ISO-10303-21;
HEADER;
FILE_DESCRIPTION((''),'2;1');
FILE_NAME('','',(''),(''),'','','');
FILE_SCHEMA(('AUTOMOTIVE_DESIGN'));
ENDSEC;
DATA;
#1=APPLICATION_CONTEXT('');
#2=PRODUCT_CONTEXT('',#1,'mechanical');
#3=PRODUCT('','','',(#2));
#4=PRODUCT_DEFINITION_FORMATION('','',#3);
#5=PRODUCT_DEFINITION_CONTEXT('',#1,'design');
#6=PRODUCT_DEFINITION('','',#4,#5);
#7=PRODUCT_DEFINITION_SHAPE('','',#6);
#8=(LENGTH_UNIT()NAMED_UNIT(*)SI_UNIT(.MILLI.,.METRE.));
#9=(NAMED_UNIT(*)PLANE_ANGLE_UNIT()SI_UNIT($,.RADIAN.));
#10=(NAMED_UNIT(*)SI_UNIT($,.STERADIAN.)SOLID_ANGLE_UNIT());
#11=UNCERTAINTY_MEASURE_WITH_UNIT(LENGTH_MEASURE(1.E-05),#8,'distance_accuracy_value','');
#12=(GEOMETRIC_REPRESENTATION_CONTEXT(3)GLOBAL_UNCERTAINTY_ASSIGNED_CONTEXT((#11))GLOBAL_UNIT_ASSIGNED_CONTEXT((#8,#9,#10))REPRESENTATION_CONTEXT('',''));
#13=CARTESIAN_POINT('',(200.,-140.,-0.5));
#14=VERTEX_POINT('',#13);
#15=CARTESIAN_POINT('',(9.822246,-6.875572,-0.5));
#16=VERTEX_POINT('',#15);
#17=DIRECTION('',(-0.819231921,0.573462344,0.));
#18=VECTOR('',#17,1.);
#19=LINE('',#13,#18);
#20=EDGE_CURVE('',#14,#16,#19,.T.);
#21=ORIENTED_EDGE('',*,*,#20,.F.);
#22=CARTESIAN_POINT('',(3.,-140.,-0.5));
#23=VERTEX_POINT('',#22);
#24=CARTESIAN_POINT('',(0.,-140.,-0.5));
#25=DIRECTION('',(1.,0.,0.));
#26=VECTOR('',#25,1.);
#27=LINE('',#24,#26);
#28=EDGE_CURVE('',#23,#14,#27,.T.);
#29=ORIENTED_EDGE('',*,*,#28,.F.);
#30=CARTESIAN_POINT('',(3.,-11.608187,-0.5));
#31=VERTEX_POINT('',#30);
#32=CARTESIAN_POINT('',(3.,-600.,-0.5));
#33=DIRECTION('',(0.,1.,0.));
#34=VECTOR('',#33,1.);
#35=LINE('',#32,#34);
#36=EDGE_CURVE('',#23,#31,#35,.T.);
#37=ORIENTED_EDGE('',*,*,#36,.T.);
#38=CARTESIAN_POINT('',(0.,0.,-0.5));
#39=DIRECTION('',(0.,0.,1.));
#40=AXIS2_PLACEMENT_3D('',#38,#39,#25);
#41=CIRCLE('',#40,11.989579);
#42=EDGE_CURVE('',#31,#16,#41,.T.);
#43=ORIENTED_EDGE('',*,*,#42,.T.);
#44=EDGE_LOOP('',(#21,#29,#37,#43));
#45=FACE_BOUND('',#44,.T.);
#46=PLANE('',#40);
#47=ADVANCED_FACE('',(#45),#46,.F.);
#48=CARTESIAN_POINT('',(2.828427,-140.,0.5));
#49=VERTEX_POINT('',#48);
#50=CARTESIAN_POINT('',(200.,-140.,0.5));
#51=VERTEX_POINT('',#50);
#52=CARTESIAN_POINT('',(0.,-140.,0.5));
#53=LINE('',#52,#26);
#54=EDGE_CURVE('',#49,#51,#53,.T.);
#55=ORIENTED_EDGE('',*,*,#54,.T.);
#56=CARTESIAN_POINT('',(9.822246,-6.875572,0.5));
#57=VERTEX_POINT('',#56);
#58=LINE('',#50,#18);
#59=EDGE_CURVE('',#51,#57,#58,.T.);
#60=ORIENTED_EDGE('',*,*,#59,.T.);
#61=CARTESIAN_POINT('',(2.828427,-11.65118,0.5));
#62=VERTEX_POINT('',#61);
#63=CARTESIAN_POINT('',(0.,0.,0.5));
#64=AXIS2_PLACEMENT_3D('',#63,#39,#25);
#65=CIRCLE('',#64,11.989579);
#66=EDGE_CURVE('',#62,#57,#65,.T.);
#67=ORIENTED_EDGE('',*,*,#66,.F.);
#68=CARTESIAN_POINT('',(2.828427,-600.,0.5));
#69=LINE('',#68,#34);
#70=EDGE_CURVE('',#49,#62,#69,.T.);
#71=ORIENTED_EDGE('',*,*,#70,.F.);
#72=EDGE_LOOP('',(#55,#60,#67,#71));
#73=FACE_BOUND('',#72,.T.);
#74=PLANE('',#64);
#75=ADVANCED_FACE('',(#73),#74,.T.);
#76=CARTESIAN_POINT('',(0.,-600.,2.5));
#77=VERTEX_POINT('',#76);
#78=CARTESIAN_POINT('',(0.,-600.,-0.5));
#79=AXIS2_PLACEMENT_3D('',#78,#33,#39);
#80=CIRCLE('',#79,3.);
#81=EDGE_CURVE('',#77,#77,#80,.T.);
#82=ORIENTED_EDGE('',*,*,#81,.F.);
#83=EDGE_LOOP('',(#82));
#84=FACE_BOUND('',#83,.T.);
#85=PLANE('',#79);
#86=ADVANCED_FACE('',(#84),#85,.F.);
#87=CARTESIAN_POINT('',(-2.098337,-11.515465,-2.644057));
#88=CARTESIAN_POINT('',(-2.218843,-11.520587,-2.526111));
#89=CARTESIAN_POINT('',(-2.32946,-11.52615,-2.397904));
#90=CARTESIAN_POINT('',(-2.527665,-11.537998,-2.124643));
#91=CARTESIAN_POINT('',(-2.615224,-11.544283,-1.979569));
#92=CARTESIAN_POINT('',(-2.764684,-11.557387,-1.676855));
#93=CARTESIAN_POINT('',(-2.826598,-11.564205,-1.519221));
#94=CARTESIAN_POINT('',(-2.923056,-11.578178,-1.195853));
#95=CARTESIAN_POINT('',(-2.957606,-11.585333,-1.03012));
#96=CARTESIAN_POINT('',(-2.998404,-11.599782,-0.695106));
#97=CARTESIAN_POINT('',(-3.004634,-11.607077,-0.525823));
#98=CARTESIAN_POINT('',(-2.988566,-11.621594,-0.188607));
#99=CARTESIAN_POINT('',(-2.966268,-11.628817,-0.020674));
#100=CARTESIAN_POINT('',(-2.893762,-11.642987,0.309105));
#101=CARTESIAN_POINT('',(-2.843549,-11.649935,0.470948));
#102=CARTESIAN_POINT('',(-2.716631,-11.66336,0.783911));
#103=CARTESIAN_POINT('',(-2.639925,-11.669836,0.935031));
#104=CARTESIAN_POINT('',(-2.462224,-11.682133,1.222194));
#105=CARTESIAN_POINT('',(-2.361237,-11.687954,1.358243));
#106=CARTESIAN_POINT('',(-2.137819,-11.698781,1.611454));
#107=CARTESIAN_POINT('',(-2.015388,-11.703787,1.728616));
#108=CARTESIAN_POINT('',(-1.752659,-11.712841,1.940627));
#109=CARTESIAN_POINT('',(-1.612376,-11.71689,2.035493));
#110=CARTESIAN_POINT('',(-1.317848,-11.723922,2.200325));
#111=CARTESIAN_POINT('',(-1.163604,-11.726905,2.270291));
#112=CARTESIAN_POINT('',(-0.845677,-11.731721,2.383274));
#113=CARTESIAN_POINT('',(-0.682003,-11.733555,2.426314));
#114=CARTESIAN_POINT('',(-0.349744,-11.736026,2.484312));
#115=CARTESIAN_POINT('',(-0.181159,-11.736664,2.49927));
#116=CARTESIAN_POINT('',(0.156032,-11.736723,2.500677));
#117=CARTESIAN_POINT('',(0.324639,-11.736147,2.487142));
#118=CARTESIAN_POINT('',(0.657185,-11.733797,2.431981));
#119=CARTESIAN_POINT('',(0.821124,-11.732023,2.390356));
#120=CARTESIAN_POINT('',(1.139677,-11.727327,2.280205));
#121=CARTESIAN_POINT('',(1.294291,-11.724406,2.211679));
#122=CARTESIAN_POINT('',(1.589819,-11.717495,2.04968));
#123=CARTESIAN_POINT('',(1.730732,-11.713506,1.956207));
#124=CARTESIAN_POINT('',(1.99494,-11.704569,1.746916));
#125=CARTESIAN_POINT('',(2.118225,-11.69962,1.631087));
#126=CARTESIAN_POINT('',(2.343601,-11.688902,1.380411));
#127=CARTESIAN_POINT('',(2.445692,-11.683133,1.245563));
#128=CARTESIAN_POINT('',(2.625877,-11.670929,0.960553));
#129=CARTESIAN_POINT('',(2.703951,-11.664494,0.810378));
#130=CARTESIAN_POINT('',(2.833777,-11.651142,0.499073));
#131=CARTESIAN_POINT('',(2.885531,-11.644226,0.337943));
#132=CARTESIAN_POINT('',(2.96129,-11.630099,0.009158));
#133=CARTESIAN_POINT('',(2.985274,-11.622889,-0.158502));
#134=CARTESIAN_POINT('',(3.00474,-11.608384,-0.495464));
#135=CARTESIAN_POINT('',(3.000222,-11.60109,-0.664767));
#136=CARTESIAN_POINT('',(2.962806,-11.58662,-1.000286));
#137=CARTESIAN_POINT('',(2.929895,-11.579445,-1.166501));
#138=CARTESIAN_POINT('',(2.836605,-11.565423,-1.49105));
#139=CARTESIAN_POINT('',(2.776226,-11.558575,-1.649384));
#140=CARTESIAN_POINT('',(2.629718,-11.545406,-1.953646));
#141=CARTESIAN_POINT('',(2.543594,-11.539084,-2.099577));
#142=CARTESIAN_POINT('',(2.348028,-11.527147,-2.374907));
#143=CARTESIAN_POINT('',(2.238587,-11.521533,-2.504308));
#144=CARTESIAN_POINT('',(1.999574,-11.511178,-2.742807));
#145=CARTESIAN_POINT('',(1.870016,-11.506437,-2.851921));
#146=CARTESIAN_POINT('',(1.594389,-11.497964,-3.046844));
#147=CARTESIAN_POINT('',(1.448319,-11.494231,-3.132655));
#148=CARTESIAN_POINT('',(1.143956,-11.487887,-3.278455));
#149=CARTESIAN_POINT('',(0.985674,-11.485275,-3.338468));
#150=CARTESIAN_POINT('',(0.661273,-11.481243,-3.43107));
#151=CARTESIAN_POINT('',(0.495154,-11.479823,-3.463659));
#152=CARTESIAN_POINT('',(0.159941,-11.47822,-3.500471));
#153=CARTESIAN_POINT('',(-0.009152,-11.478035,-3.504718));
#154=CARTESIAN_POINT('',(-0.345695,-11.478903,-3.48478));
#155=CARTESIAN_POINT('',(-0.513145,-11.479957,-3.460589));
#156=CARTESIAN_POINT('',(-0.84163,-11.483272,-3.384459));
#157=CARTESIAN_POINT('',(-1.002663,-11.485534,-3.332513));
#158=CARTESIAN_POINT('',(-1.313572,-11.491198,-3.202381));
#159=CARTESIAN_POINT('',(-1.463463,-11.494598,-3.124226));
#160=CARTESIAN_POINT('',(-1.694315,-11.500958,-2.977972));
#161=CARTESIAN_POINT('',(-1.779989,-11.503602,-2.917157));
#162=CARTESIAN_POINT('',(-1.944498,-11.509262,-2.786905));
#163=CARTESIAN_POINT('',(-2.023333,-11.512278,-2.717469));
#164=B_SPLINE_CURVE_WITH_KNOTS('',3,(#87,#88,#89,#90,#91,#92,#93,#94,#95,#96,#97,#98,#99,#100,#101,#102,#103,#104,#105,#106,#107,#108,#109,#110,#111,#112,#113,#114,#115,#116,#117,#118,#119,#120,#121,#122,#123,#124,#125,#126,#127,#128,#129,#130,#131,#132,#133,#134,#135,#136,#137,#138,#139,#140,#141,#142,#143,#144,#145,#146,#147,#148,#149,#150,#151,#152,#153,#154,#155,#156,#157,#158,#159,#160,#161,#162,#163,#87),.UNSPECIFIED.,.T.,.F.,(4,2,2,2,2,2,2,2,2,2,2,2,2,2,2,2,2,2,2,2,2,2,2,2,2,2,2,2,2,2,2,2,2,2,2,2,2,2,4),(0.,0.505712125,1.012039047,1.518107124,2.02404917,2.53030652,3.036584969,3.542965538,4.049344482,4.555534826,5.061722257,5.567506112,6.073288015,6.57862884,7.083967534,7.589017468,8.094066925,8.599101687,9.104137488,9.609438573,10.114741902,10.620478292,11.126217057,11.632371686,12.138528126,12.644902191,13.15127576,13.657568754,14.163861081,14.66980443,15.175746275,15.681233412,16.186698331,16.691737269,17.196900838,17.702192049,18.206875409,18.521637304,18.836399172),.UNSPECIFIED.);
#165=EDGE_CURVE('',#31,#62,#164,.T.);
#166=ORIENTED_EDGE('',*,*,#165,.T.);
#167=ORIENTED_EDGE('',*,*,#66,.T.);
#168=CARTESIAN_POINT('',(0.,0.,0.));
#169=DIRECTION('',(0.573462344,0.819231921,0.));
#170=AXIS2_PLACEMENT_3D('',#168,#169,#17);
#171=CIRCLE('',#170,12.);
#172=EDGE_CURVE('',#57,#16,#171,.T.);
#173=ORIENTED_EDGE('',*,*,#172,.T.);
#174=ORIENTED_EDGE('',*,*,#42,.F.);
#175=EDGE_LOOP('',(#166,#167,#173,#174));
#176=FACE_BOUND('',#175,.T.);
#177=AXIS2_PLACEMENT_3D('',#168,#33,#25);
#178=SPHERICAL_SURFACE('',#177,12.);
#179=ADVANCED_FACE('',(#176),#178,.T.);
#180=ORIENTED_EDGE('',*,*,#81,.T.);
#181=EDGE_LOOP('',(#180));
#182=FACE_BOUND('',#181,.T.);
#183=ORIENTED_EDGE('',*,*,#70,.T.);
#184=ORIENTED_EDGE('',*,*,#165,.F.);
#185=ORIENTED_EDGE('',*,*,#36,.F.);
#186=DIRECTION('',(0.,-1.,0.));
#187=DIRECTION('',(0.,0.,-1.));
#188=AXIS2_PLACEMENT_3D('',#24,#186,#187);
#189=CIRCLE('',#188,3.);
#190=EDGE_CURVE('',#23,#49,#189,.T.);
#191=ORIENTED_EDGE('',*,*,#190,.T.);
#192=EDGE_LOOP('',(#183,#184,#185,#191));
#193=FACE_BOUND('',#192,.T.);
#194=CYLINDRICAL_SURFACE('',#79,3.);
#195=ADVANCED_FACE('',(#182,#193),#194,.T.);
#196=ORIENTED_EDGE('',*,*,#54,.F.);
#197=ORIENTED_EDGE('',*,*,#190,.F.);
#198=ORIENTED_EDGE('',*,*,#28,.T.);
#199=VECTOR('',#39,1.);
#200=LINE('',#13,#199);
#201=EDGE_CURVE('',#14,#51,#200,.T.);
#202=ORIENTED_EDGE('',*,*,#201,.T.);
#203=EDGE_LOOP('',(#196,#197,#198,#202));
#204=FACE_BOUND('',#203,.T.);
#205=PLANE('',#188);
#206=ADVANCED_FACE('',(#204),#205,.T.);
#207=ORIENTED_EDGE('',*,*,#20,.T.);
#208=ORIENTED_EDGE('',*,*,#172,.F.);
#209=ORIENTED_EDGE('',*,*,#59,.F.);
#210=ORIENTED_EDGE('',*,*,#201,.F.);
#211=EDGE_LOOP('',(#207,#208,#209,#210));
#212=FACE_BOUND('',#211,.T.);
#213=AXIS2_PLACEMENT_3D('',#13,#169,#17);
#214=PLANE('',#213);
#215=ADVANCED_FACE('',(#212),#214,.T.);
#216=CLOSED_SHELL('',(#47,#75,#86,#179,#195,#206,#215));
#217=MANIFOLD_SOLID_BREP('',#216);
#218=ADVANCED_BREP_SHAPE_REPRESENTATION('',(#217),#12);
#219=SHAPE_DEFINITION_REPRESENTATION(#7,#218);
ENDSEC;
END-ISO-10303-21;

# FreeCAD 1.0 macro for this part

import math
import FreeCAD as App
import Part
import Sketcher

V = App.Vector

doc = App.newDocument("Part")
body = doc.addObject("PartDesign::Body", "Body")

# Sketch on XY plane
sketch1 = body.newObject("Sketcher::SketchObject", "Sketch")
sketch1.AttachmentSupport = (doc.getObject("XY_Plane"), [""])
sketch1.MapMode = "FlatFace"
sketch1.addGeometry([
    Part.LineSegment(V(0, 0, 0), V(0, -140, 0)),
    Part.LineSegment(V(0, -140, 0), V(200, -140, 0)),
    Part.LineSegment(V(200, -140, 0), V(0, 0, 0)),
], False)
sketch1.addConstraint([
    Sketcher.Constraint("Coincident", 0, 2, 1, 1),
    Sketcher.Constraint("Coincident", 1, 2, 2, 1),
    Sketcher.Constraint("Coincident", 2, 2, 0, 1),
    Sketcher.Constraint("Vertical", 0),
    Sketcher.Constraint("Horizontal", 1),
    Sketcher.Constraint("Coincident", 2, 2, -1, 1),
    Sketcher.Constraint("DistanceX", 1, 1, 1, 2, 200.0),
    Sketcher.Constraint("DistanceY", 0, 2, 0, 1, 140.0),
])
pad1 = body.newObject("PartDesign::Pad", "Pad")
pad1.Profile = sketch1
pad1.Type = "TwoLengths"
pad1.Length = 0.5
pad1.Length2 = 0.5

# Sketch on XZ plane
sketch2 = body.newObject("Sketcher::SketchObject", "Sketch001")
sketch2.AttachmentSupport = (doc.getObject("XZ_Plane"), [""])
sketch2.MapMode = "FlatFace"
sketch2.addGeometry(Part.Circle(V(0, -0.5, 0), V(0, 0, 1), 3), False)
sketch2.addConstraint([
    Sketcher.Constraint("PointOnObject", 0, 3, -2),
    Sketcher.Constraint("Diameter", 0, 6.0),
    Sketcher.Constraint("DistanceY", 0, 3, -1, 1, 0.5),
])
pad2 = body.newObject("PartDesign::Pad", "Pad001")
pad2.Profile = sketch2
pad2.Length = 600

# Sketch on XY plane
sketch3 = body.newObject("Sketcher::SketchObject", "Sketch002")
sketch3.AttachmentSupport = (doc.getObject("XY_Plane"), [""])
sketch3.MapMode = "FlatFace"
sketch3.addGeometry([
    Part.LineSegment(V(0, -12, 0), V(0, 12, 0)),
    Part.ArcOfCircle(Part.Circle(V(0, 0, 0), V(0, 0, 1), 12), math.radians(90), math.radians(270)),
], False)
sketch3.addConstraint([
    Sketcher.Constraint("Coincident", 0, 1, 1, 2),
    Sketcher.Constraint("Coincident", 1, 1, 0, 2),
    Sketcher.Constraint("Vertical", 0),
    Sketcher.Constraint("Coincident", 1, 3, -1, 1),
    Sketcher.Constraint("PointOnObject", 0, 1, -2),
    Sketcher.Constraint("Radius", 1, 12.0),
])
revolution = body.newObject("PartDesign::Revolution", "Revolution")
revolution.Profile = sketch3
revolution.ReferenceAxis = (sketch3, ["V_Axis"])
revolution.Angle = 360

doc.recompute()
